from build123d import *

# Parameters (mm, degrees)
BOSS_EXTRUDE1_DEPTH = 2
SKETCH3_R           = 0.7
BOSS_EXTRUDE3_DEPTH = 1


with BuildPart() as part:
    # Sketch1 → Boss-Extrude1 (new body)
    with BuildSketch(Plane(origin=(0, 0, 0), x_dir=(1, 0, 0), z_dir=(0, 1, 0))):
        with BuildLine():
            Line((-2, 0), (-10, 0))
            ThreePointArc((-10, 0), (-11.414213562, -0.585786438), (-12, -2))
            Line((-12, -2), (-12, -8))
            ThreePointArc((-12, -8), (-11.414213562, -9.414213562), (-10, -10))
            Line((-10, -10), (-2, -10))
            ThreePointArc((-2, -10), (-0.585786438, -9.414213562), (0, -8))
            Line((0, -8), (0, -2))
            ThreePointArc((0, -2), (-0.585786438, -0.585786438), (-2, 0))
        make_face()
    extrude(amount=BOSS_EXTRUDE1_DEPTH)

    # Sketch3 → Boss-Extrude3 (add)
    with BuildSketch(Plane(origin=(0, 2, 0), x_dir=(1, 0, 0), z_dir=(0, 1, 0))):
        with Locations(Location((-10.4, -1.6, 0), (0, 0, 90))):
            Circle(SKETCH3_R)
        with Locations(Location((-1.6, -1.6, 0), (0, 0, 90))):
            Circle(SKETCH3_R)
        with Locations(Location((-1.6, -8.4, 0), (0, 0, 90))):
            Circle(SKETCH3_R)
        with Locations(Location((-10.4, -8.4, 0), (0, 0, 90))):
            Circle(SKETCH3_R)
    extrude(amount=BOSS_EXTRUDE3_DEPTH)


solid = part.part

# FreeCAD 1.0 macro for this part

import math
import FreeCAD as App
import Part
import Sketcher
from FreeCAD import Vector
Q = App.Units.Quantity

doc = App.newDocument("Part")
body = doc.addObject("PartDesign::Body", "Body")

# Sketch on XZ plane
sketch1 = body.newObject("Sketcher::SketchObject", "Sketch")
sketch1.AttachmentSupport = (doc.getObject("XZ_Plane"), [""])
sketch1.MapMode = "FlatFace"
sketch1.addGeometry(Part.LineSegment(Vector(-2, 0, 0), Vector(-10, 0, 0)), False)
sketch1.addGeometry(Part.ArcOfCircle(Part.Circle(Vector(-10, 2, 0), Vector(0, 0, 1), 2), math.radians(-180), math.radians(-90)), False)
sketch1.addGeometry(Part.LineSegment(Vector(-12, 2, 0), Vector(-12, 8, 0)), False)
sketch1.addGeometry(Part.ArcOfCircle(Part.Circle(Vector(-10, 8, 0), Vector(0, 0, 1), 2), math.radians(90), math.radians(180)), False)
sketch1.addGeometry(Part.LineSegment(Vector(-10, 10, 0), Vector(-2, 10, 0)), False)
sketch1.addGeometry(Part.ArcOfCircle(Part.Circle(Vector(-2, 8, 0), Vector(0, 0, 1), 2), math.radians(0), math.radians(90)), False)
sketch1.addGeometry(Part.LineSegment(Vector(0, 8, 0), Vector(0, 2, 0)), False)
sketch1.addGeometry(Part.ArcOfCircle(Part.Circle(Vector(-2, 2, 0), Vector(0, 0, 1), 2), math.radians(-90), math.radians(0)), False)
sketch1.addConstraint(Sketcher.Constraint("Tangent", 0, 2, 1, 2))
sketch1.addConstraint(Sketcher.Constraint("Tangent", 1, 1, 2, 1))
sketch1.addConstraint(Sketcher.Constraint("Tangent", 2, 2, 3, 2))
sketch1.addConstraint(Sketcher.Constraint("Tangent", 3, 1, 4, 1))
sketch1.addConstraint(Sketcher.Constraint("Tangent", 4, 2, 5, 2))
sketch1.addConstraint(Sketcher.Constraint("Tangent", 5, 1, 6, 1))
sketch1.addConstraint(Sketcher.Constraint("Tangent", 6, 2, 7, 2))
sketch1.addConstraint(Sketcher.Constraint("Tangent", 7, 1, 0, 1))
sketch1.addConstraint(Sketcher.Constraint("Horizontal", 0))
sketch1.addConstraint(Sketcher.Constraint("Vertical", 2))
sketch1.addConstraint(Sketcher.Constraint("Horizontal", 4))
sketch1.addConstraint(Sketcher.Constraint("Vertical", 6))
sketch1.addConstraint(Sketcher.Constraint("Equal", 1, 3))
sketch1.addConstraint(Sketcher.Constraint("Equal", 3, 5))
sketch1.addConstraint(Sketcher.Constraint("Equal", 5, 7))
sketch1.addConstraint(Sketcher.Constraint("PointOnObject", 0, 2, -1))
sketch1.addConstraint(Sketcher.Constraint("PointOnObject", 5, 1, -2))
sketch1.addConstraint(Sketcher.Constraint("Radius", 1, Q("2 mm")))
sketch1.addConstraint(Sketcher.Constraint("DistanceX", 0, 2, 0, 1, Q("8 mm")))
sketch1.addConstraint(Sketcher.Constraint("DistanceY", 2, 1, 2, 2, Q("6 mm")))
pad1 = body.newObject("PartDesign::Pad", "Pad")
pad1.Profile = sketch1
pad1.Length = 2
pad1.Reversed = True

# Sketch on XZ plane
sketch2 = body.newObject("Sketcher::SketchObject", "Sketch001")
sketch2.AttachmentSupport = (doc.getObject("XZ_Plane"), [""])
sketch2.MapMode = "FlatFace"
sketch2.AttachmentOffset = App.Placement(Vector(0, 0, -2), App.Rotation())
sketch2.addGeometry(Part.Circle(Vector(-10.4, 1.6, 0), Vector(0, 0, 1), 0.7), False)
sketch2.addGeometry(Part.Circle(Vector(-1.6, 1.6, 0), Vector(0, 0, 1), 0.7), False)
sketch2.addGeometry(Part.Circle(Vector(-1.6, 8.4, 0), Vector(0, 0, 1), 0.7), False)
sketch2.addGeometry(Part.Circle(Vector(-10.4, 8.4, 0), Vector(0, 0, 1), 0.7), False)
sketch2.addConstraint(Sketcher.Constraint("Equal", 0, 1))
sketch2.addConstraint(Sketcher.Constraint("Equal", 1, 2))
sketch2.addConstraint(Sketcher.Constraint("Equal", 2, 3))
sketch2.addConstraint(Sketcher.Constraint("Horizontal", 0, 3, 1, 3))
sketch2.addConstraint(Sketcher.Constraint("Horizontal", 2, 3, 3, 3))
sketch2.addConstraint(Sketcher.Constraint("Vertical", 1, 3, 2, 3))
sketch2.addConstraint(Sketcher.Constraint("Vertical", 0, 3, 3, 3))
sketch2.addConstraint(Sketcher.Constraint("Diameter", 0, Q("1.4 mm")))
sketch2.addConstraint(Sketcher.Constraint("DistanceX", 0, 3, -1, 1, Q("10.4 mm")))
sketch2.addConstraint(Sketcher.Constraint("DistanceY", -1, 1, 0, 3, Q("1.6 mm")))
sketch2.addConstraint(Sketcher.Constraint("DistanceX", 1, 3, -1, 1, Q("1.6 mm")))
sketch2.addConstraint(Sketcher.Constraint("DistanceY", -1, 1, 2, 3, Q("8.4 mm")))
pad2 = body.newObject("PartDesign::Pad", "Pad001")
pad2.Profile = sketch2
pad2.Length = 1
pad2.Reversed = True

doc.recompute()
